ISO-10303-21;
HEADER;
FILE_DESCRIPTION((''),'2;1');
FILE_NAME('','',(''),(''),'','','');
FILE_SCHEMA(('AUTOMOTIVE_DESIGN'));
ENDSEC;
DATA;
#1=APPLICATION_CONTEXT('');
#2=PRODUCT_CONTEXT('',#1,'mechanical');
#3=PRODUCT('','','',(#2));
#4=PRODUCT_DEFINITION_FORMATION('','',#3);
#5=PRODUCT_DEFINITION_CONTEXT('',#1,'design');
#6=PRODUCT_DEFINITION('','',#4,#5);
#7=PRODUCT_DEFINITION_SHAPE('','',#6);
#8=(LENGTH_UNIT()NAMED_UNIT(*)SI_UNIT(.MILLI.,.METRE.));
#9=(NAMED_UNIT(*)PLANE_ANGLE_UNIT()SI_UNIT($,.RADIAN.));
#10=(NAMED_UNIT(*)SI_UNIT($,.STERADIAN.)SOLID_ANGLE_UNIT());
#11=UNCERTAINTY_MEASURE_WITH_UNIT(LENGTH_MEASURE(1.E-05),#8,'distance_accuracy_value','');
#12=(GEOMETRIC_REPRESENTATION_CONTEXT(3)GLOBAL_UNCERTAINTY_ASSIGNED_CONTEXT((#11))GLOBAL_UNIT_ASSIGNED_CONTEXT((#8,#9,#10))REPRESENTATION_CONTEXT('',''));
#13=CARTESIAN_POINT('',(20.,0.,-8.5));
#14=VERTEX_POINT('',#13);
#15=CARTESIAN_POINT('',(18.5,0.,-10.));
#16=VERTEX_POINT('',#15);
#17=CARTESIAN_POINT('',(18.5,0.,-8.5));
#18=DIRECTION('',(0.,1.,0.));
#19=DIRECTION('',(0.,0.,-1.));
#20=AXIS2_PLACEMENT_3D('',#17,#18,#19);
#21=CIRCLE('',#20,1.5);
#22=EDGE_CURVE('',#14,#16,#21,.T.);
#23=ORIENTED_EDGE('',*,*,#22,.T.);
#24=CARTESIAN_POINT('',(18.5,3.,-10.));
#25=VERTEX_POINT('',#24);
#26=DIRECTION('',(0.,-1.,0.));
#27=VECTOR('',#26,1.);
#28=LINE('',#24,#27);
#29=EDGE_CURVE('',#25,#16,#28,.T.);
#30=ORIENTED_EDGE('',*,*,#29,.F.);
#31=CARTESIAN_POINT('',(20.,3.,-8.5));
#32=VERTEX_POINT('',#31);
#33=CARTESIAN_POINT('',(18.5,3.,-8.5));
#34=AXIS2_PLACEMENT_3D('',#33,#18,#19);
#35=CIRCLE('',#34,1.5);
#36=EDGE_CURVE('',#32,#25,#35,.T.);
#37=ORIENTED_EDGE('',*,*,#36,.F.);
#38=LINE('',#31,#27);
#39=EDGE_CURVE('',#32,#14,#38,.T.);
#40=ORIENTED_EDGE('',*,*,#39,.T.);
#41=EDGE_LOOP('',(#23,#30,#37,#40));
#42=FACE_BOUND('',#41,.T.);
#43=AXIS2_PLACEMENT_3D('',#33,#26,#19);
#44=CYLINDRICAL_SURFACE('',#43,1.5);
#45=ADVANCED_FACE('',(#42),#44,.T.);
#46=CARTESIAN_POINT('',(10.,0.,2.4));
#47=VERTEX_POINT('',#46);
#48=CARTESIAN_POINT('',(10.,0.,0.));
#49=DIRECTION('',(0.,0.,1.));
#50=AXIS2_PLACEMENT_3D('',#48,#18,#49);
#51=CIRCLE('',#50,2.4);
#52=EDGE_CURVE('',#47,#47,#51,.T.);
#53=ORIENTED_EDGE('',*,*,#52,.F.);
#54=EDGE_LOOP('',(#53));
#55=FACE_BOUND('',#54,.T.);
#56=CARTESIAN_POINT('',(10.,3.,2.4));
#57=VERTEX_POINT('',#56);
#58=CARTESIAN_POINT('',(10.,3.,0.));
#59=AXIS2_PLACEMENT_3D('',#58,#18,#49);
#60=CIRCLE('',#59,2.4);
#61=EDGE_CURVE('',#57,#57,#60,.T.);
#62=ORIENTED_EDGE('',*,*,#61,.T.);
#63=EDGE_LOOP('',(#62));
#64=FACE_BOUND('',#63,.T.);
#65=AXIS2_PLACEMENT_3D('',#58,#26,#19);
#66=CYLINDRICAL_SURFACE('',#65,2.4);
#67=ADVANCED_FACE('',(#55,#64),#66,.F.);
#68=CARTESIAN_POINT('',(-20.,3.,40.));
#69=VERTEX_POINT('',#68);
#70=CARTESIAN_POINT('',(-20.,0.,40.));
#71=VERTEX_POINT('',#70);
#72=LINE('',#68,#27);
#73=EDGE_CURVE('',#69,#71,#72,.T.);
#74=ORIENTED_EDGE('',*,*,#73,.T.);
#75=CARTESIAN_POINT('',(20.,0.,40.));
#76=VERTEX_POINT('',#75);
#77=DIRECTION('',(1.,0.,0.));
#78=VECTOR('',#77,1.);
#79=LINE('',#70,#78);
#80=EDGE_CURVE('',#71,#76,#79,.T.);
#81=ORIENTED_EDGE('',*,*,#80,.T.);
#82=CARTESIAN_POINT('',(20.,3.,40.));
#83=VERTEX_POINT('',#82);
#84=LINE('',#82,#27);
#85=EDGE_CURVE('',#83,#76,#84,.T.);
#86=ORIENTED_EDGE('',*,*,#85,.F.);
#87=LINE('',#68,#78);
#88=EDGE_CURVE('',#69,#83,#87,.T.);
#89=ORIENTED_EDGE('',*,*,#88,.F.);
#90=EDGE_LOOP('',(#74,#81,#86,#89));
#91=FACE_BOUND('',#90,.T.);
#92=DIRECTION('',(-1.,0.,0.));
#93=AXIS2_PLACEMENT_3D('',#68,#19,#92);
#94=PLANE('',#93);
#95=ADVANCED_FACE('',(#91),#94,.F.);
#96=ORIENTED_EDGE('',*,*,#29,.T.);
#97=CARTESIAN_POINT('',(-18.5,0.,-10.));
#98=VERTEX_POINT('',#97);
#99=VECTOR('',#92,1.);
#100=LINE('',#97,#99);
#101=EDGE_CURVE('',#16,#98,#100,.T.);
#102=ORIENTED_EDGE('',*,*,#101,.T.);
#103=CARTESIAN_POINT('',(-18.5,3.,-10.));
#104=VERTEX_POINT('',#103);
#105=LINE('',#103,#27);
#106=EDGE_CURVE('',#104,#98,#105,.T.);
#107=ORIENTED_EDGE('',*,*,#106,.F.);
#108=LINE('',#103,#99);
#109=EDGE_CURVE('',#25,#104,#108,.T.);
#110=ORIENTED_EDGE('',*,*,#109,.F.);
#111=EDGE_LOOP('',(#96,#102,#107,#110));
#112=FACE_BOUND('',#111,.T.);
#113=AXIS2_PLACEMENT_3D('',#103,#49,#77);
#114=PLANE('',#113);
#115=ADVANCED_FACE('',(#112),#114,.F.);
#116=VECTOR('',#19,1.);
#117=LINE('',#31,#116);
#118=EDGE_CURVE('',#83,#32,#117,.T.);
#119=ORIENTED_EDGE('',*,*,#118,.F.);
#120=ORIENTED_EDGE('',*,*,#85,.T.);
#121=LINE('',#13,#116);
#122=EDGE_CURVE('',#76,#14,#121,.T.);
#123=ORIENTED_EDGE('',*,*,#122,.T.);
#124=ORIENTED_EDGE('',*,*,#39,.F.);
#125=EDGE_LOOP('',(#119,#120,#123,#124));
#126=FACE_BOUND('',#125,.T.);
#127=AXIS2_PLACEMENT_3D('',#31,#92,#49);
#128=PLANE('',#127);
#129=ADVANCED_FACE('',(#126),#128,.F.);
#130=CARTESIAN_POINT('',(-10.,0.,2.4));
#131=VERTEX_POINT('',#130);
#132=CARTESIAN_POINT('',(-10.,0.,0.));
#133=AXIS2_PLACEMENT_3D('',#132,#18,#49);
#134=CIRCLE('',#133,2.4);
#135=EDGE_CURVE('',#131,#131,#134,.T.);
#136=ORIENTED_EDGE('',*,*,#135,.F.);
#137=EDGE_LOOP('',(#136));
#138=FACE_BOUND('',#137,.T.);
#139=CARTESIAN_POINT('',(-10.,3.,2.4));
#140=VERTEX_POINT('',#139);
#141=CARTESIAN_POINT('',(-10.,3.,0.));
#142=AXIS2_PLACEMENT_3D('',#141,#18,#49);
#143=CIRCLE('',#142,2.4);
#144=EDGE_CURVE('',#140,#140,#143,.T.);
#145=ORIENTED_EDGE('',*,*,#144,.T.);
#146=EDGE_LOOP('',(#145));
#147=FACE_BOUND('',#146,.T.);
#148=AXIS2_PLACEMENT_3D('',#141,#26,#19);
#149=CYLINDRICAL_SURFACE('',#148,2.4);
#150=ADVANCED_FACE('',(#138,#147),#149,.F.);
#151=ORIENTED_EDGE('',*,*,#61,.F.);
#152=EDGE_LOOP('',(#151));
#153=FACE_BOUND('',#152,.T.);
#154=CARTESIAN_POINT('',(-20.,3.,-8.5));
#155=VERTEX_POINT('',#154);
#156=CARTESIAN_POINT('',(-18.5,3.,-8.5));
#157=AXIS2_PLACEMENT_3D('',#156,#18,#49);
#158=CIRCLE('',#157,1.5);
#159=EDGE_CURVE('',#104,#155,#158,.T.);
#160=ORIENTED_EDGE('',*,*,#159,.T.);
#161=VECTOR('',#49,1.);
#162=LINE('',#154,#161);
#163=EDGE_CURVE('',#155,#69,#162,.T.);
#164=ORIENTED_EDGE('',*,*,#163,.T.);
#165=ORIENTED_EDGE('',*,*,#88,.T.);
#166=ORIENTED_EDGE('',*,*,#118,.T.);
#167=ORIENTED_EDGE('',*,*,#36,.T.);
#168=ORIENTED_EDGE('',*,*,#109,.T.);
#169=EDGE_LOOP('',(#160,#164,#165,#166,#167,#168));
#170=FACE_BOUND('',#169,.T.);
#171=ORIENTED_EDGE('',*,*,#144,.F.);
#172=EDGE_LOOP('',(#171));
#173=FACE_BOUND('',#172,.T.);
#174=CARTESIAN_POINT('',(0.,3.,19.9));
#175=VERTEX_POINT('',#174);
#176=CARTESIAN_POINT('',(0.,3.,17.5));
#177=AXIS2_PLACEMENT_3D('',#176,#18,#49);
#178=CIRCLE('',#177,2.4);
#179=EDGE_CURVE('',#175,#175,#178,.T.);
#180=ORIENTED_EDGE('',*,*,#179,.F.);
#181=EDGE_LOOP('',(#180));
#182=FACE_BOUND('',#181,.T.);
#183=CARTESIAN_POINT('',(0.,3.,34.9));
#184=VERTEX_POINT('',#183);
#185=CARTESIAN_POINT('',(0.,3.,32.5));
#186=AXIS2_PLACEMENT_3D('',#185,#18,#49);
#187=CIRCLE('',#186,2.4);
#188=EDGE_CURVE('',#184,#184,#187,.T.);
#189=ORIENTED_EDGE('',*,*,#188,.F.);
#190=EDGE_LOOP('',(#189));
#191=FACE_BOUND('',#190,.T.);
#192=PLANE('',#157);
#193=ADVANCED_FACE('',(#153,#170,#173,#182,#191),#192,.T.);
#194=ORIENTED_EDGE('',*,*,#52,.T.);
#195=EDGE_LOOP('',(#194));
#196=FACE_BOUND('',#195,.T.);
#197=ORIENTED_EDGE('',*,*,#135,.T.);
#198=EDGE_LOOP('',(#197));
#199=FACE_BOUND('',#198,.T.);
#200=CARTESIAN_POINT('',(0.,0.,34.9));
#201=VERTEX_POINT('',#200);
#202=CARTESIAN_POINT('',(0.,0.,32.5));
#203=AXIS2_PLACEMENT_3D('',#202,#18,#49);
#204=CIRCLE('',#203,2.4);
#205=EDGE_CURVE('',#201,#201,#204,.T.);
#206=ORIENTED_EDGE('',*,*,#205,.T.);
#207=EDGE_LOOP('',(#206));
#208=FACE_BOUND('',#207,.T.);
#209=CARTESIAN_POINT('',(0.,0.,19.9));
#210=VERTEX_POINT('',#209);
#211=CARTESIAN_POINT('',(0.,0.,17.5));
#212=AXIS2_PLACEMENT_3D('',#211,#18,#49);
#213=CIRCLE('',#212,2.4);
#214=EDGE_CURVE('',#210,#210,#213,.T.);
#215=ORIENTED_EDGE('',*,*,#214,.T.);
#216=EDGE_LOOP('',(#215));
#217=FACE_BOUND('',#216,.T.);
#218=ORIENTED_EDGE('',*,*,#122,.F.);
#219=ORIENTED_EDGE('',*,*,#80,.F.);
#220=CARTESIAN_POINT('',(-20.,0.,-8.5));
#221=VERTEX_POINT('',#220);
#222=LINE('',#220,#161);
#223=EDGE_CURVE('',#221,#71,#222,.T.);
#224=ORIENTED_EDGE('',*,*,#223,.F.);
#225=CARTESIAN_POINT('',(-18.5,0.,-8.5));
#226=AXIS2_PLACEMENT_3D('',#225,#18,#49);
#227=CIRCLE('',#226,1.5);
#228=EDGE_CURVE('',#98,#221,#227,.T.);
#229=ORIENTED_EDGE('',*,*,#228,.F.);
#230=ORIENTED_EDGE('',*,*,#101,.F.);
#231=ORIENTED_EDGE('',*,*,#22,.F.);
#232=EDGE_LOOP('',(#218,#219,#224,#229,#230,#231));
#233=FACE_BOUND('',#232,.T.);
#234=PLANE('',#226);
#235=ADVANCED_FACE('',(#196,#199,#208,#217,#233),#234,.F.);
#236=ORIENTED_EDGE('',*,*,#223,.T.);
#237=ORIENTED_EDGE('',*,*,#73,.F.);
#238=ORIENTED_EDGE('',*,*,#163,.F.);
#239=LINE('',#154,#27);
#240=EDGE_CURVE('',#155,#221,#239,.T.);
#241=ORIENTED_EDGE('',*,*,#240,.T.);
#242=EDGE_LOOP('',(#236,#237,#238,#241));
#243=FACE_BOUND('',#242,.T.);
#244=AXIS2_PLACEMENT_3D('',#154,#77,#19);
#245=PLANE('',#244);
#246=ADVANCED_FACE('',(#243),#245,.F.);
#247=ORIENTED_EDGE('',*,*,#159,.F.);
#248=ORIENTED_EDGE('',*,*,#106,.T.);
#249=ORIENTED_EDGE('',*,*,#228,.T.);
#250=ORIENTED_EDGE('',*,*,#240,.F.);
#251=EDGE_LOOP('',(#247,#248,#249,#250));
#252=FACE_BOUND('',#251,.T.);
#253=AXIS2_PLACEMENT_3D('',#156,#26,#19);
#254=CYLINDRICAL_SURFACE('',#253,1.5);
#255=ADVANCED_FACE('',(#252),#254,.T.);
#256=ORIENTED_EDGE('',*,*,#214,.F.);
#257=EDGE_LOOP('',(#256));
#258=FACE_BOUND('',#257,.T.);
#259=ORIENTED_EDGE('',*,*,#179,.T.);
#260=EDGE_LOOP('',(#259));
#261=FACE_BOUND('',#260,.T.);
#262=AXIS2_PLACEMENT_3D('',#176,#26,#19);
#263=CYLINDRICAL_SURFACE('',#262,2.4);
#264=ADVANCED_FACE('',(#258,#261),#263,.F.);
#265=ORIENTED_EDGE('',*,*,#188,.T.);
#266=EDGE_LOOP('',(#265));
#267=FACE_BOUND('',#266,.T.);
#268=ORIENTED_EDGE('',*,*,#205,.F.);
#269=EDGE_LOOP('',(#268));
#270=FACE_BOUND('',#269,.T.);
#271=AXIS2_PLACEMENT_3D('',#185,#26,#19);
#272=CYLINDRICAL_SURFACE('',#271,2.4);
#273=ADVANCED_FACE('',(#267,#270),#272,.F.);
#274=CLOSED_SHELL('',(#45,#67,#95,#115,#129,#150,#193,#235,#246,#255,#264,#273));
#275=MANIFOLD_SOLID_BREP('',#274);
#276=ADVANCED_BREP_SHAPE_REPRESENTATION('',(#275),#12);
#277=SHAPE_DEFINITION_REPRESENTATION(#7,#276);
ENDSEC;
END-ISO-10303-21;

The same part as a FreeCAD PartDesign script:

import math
import FreeCAD as App
import Part
import Sketcher

doc = App.newDocument("Part")
body = doc.addObject("PartDesign::Body", "Body")

# Sketch on XZ plane
sketch1 = body.newObject("Sketcher::SketchObject", "Sketch")
sketch1.AttachmentSupport = (doc.getObject("XZ_Plane"), [""])
sketch1.MapMode = "FlatFace"
sketch1.addGeometry(Part.LineSegment(App.Vector(18.5, -10, 0), App.Vector(-18.5, -10, 0)), False)
sketch1.addGeometry(Part.ArcOfCircle(Part.Circle(App.Vector(-18.5, -8.5, 0), App.Vector(0, 0, 1), 1.5), math.radians(180), math.radians(270)), False)
sketch1.addGeometry(Part.LineSegment(App.Vector(-20, -8.5, 0), App.Vector(-20, 40, 0)), False)
sketch1.addGeometry(Part.LineSegment(App.Vector(-20, 40, 0), App.Vector(20, 40, 0)), False)
sketch1.addGeometry(Part.LineSegment(App.Vector(20, 40, 0), App.Vector(20, -8.5, 0)), False)
sketch1.addGeometry(Part.ArcOfCircle(Part.Circle(App.Vector(18.5, -8.5, 0), App.Vector(0, 0, 1), 1.5), math.radians(-90), math.radians(0)), False)
sketch1.addGeometry(Part.Circle(App.Vector(0, 32.5, 0), App.Vector(0, 0, 1), 2.4), False)
sketch1.addGeometry(Part.Circle(App.Vector(0, 17.5, 0), App.Vector(0, 0, 1), 2.4), False)
sketch1.addGeometry(Part.Circle(App.Vector(10, 0, 0), App.Vector(0, 0, 1), 2.4), False)
sketch1.addGeometry(Part.Circle(App.Vector(-10, 0, 0), App.Vector(0, 0, 1), 2.4), False)
sketch1.addConstraint(Sketcher.Constraint("Tangent", 0, 2, 1, 2))
sketch1.addConstraint(Sketcher.Constraint("Tangent", 1, 1, 2, 1))
sketch1.addConstraint(Sketcher.Constraint("Coincident", 2, 2, 3, 1))
sketch1.addConstraint(Sketcher.Constraint("Coincident", 3, 2, 4, 1))
sketch1.addConstraint(Sketcher.Constraint("Tangent", 4, 2, 5, 2))
sketch1.addConstraint(Sketcher.Constraint("Tangent", 5, 1, 0, 1))
sketch1.addConstraint(Sketcher.Constraint("Horizontal", 0))
sketch1.addConstraint(Sketcher.Constraint("Vertical", 2))
sketch1.addConstraint(Sketcher.Constraint("Horizontal", 3))
sketch1.addConstraint(Sketcher.Constraint("Vertical", 4))
sketch1.addConstraint(Sketcher.Constraint("Equal", 1, 5))
sketch1.addConstraint(Sketcher.Constraint("Equal", 6, 7))
sketch1.addConstraint(Sketcher.Constraint("Equal", 7, 8))
sketch1.addConstraint(Sketcher.Constraint("Equal", 8, 9))
sketch1.addConstraint(Sketcher.Constraint("Symmetric", 8, 3, 9, 3, -1, 1))
sketch1.addConstraint(Sketcher.Constraint("PointOnObject", 6, 3, -2))
sketch1.addConstraint(Sketcher.Constraint("PointOnObject", 7, 3, -2))
sketch1.addConstraint(Sketcher.Constraint("PointOnObject", 8, 3, -1))
sketch1.addConstraint(Sketcher.Constraint("Diameter", 6, 4.8))
sketch1.addConstraint(Sketcher.Constraint("Radius", 1, 1.5))
sketch1.addConstraint(Sketcher.Constraint("DistanceX", 0, 2, 0, 1, 37.0))
sketch1.addConstraint(Sketcher.Constraint("DistanceY", 2, 1, 2, 2, 48.5))
sketch1.addConstraint(Sketcher.Constraint("DistanceX", -1, 1, 8, 3, 10.0))
sketch1.addConstraint(Sketcher.Constraint("DistanceY", 0, 2, -1, 1, 10.0))
sketch1.addConstraint(Sketcher.Constraint("DistanceX", 1, 1, -1, 1, 20.0))
sketch1.addConstraint(Sketcher.Constraint("DistanceY", 1, 3, 6, 3, 41.0))
sketch1.addConstraint(Sketcher.Constraint("DistanceY", 7, 3, 6, 3, 15.0))
pad1 = body.newObject("PartDesign::Pad", "Pad")
pad1.Profile = sketch1
pad1.Length = 3
pad1.Reversed = True

doc.recompute()
